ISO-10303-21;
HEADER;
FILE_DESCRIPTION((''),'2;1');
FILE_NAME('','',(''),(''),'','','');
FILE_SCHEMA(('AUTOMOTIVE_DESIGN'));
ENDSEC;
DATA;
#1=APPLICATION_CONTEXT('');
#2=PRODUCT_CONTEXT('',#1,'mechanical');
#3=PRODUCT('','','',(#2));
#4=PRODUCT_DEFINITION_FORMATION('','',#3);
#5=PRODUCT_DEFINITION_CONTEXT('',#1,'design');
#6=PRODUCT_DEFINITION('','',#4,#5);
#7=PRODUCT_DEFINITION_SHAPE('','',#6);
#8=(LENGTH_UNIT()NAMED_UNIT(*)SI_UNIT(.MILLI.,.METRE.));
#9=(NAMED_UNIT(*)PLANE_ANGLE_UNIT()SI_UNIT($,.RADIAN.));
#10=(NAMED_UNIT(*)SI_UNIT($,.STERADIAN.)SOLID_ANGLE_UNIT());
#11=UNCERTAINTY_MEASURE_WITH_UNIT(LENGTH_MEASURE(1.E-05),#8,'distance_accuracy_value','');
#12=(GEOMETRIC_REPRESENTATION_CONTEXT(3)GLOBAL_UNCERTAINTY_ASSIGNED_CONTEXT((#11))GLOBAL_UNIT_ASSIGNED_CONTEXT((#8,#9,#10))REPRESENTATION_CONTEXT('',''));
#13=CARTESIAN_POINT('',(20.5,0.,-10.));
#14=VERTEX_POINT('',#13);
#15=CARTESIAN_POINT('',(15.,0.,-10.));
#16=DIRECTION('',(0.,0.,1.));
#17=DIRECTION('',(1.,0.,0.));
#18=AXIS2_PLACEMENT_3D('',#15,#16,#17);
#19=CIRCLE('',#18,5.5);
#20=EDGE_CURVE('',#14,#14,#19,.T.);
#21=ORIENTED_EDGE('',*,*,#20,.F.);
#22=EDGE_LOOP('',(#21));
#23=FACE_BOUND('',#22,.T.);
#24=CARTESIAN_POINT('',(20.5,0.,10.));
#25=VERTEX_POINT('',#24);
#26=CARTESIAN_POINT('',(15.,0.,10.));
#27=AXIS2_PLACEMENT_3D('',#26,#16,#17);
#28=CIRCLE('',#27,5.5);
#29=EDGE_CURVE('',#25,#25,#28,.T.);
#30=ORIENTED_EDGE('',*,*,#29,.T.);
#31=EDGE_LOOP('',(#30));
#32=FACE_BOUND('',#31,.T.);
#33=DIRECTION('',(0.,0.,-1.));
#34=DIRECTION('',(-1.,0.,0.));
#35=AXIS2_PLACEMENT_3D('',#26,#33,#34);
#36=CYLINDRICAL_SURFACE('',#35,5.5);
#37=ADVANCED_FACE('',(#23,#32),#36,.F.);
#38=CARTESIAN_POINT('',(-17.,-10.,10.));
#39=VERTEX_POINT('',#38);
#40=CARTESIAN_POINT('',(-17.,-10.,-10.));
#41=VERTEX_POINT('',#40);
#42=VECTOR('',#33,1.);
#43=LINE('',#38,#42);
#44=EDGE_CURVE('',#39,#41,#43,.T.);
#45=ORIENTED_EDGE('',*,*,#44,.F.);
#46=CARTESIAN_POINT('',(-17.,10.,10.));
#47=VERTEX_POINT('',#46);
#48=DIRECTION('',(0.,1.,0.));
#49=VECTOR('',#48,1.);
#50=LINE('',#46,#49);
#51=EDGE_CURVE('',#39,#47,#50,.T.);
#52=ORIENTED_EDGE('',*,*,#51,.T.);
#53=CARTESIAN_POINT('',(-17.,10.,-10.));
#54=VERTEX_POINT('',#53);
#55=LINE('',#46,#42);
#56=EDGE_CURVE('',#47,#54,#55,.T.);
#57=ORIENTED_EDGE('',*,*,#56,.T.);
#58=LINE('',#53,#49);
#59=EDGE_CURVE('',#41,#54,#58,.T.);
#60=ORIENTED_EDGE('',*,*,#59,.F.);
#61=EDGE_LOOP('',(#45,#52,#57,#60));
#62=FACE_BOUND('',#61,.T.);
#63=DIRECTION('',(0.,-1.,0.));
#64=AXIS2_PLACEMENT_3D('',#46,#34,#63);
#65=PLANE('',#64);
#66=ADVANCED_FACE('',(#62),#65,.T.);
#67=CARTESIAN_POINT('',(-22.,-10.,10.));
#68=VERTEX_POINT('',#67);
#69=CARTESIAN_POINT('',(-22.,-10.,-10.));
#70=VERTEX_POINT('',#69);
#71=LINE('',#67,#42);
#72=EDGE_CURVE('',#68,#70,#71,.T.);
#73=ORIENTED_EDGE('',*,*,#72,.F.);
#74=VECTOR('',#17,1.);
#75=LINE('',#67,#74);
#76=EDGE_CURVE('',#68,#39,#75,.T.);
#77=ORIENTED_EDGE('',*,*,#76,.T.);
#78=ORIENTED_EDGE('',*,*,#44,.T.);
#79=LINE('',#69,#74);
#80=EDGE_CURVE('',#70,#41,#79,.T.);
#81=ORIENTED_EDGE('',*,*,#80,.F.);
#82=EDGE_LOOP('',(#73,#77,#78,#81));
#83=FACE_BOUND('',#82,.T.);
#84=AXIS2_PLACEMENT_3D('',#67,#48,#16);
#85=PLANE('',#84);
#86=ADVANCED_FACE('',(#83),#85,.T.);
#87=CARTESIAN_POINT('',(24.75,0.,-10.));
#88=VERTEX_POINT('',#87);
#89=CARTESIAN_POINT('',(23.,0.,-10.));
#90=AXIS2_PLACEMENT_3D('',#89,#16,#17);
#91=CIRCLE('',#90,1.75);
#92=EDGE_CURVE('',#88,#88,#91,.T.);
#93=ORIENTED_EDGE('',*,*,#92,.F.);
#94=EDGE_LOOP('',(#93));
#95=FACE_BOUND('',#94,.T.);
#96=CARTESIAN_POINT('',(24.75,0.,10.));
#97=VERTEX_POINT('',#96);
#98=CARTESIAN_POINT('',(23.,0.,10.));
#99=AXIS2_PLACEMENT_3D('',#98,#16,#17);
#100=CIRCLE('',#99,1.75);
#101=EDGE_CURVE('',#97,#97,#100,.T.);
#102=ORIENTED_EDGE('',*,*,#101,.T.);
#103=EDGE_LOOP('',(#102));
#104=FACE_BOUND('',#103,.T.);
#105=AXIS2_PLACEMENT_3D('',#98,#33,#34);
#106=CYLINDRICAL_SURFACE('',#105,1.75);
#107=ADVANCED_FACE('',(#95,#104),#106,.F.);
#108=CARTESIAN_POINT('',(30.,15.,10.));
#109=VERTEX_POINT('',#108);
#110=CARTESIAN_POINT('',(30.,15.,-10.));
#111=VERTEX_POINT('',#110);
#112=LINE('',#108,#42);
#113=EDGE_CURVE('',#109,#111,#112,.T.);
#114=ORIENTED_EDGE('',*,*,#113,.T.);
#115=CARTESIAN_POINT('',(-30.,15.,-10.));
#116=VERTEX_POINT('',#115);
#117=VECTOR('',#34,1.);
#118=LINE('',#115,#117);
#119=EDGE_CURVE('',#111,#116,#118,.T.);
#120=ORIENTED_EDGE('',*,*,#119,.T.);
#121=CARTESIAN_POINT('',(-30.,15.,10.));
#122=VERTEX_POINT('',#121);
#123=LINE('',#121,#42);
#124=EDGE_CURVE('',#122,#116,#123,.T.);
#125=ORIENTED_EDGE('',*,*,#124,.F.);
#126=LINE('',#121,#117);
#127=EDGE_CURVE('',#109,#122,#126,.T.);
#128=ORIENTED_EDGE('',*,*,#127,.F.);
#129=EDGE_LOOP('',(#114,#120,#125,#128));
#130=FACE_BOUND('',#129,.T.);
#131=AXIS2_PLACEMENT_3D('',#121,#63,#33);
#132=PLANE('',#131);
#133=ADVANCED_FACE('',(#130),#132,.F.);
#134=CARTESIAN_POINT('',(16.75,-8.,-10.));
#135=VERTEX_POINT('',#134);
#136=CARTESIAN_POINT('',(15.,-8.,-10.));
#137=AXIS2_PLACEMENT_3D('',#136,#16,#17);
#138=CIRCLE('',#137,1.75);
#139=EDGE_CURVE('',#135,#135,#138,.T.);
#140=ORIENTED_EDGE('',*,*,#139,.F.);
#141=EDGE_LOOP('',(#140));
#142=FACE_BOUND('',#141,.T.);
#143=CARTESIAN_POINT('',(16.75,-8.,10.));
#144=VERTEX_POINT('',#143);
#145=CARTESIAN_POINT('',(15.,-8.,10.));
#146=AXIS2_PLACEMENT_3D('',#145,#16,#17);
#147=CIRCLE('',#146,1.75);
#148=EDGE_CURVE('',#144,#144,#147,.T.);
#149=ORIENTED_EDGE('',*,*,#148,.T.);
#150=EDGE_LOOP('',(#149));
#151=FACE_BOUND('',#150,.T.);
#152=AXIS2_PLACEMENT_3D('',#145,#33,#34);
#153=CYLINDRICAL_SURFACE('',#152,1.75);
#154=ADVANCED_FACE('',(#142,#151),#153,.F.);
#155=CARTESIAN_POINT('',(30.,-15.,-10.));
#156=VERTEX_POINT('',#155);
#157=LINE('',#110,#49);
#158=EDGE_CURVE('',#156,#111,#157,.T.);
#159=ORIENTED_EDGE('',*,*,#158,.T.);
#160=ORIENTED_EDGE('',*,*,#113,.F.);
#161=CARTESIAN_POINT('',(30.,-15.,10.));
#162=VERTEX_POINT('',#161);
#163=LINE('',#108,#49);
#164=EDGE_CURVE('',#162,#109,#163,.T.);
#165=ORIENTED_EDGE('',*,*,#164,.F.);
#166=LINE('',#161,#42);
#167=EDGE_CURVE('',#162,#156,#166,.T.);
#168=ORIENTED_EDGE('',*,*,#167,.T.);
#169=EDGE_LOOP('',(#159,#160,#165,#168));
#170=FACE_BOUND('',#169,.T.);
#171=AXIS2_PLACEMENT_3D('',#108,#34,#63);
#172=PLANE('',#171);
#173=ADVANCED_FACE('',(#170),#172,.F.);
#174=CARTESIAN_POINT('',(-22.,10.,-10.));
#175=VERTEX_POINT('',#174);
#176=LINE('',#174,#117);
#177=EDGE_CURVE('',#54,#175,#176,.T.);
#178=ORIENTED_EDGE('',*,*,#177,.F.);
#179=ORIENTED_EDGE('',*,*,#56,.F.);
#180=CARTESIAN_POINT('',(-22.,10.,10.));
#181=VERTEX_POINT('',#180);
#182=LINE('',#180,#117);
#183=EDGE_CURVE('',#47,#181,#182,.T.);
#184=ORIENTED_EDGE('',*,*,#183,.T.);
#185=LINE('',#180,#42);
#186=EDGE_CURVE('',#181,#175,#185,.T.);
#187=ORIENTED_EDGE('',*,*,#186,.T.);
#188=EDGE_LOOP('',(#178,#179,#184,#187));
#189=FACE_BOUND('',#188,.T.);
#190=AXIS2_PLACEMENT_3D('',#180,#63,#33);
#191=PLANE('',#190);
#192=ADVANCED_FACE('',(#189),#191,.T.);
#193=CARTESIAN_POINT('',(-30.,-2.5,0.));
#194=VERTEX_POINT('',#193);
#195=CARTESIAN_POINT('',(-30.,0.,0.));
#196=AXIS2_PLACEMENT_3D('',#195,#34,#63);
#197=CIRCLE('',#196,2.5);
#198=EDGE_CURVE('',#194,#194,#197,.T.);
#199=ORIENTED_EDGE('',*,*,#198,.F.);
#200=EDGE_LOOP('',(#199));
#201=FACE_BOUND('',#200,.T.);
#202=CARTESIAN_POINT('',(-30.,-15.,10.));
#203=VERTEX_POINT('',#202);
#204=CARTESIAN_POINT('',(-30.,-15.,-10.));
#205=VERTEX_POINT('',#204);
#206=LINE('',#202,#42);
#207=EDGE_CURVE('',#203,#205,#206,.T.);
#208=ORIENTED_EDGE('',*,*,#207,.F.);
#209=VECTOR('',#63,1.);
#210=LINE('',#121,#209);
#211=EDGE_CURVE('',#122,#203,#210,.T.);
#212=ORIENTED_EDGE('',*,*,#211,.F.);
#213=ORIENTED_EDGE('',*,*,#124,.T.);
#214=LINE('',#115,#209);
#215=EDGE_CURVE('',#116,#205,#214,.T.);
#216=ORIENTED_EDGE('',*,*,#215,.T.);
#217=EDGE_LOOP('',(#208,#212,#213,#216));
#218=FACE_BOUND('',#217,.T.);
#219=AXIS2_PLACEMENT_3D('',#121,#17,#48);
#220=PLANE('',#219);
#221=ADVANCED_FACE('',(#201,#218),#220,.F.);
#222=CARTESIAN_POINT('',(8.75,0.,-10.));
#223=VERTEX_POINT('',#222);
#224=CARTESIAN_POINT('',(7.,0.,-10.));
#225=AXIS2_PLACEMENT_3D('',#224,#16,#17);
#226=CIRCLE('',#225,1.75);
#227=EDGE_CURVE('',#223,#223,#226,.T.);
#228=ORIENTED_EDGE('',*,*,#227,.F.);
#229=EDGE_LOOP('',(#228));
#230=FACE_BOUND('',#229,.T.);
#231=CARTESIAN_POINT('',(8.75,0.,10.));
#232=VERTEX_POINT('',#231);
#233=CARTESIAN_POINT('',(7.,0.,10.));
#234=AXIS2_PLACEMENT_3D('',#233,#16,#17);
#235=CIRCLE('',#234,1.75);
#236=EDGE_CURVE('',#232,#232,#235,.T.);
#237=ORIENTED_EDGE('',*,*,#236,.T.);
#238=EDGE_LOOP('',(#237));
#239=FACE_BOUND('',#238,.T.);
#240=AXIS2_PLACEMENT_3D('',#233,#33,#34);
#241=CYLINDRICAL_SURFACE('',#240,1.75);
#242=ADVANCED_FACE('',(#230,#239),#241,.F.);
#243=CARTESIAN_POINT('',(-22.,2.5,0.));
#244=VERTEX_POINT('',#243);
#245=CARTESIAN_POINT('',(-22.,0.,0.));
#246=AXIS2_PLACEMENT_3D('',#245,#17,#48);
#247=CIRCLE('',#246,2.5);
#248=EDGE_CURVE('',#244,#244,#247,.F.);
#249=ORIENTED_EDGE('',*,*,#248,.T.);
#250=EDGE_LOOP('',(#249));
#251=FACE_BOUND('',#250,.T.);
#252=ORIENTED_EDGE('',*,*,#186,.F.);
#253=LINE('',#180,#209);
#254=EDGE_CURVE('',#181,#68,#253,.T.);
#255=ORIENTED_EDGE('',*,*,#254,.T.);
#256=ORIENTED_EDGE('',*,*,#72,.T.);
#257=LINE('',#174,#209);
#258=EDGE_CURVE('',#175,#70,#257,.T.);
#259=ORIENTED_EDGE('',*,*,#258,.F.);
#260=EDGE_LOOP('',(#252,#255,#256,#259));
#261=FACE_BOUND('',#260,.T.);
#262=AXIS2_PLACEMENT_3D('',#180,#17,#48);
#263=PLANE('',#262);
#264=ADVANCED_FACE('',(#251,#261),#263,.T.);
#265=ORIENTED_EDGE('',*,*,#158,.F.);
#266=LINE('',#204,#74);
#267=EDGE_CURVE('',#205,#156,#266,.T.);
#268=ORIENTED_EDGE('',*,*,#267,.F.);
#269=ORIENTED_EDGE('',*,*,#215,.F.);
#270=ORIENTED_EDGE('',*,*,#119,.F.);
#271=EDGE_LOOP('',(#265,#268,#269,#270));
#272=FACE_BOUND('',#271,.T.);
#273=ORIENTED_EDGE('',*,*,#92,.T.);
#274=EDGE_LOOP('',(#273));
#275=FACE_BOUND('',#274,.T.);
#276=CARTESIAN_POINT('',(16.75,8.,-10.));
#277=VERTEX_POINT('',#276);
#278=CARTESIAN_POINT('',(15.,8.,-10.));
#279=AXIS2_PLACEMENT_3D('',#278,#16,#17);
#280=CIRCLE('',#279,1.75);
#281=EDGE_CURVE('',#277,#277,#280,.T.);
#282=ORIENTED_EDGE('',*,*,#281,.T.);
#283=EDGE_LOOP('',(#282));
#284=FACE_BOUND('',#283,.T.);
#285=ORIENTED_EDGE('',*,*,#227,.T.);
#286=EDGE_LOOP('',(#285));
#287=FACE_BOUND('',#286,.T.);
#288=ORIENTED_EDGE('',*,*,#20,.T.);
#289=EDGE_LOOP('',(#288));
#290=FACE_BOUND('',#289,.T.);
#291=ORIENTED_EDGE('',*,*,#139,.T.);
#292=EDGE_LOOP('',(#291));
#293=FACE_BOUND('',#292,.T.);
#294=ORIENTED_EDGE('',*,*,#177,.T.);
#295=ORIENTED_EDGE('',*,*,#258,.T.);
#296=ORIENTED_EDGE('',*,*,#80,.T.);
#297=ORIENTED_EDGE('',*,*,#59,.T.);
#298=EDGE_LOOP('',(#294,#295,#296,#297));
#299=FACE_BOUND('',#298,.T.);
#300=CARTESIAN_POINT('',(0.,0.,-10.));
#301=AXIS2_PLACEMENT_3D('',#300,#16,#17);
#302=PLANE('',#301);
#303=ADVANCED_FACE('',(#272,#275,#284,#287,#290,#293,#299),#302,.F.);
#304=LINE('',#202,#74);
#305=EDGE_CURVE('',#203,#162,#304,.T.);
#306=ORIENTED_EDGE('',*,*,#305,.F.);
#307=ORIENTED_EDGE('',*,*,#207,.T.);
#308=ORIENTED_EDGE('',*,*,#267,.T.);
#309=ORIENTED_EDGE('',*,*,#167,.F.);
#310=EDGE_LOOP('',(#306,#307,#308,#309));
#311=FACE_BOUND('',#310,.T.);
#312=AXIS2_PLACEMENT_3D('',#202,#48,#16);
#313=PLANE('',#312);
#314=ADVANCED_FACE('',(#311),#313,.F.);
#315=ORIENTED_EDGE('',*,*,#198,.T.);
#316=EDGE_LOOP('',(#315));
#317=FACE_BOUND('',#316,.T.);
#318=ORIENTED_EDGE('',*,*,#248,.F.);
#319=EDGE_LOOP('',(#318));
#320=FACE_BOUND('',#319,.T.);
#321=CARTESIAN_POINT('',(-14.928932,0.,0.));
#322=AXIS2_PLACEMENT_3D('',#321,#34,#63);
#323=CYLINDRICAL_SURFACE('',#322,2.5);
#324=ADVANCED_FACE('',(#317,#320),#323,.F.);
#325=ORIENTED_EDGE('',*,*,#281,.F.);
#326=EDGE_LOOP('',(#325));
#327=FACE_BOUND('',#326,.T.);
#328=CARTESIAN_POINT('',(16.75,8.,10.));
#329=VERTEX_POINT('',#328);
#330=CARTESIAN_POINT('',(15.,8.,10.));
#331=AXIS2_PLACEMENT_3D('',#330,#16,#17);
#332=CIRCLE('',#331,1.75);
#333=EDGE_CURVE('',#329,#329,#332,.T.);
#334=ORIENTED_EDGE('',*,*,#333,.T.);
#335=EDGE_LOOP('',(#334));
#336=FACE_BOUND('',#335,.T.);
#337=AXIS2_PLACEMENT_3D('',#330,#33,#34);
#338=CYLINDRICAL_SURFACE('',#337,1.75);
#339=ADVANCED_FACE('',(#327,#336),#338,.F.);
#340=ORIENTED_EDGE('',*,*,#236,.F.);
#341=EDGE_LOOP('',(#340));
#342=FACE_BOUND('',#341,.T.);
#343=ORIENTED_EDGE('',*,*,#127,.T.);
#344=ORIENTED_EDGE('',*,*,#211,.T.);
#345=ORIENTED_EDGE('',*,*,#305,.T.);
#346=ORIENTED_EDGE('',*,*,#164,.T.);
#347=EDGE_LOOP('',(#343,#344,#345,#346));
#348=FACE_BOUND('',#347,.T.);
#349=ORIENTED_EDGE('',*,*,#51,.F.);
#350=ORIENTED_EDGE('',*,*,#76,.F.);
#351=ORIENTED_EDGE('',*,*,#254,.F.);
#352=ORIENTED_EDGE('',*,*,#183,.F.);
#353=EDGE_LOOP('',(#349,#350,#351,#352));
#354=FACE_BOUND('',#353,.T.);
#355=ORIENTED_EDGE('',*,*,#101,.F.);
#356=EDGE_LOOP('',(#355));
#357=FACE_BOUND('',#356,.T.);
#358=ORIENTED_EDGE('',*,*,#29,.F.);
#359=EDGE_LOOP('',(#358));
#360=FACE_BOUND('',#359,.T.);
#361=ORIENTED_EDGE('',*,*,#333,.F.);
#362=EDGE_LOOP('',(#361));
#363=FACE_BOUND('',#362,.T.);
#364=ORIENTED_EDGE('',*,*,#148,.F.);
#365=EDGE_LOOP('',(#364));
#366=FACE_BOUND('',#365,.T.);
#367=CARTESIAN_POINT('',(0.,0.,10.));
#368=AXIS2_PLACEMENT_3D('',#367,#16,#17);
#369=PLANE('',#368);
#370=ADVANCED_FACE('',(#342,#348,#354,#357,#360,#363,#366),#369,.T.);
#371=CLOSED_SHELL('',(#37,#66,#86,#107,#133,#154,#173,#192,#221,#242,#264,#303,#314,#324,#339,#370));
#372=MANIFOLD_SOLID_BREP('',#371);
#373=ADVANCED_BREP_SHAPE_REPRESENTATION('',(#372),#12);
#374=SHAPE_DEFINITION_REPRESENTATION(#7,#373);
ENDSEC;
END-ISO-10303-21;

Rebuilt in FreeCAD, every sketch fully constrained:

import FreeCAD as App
import Part
import Sketcher

doc = App.newDocument("Part")
body = doc.addObject("PartDesign::Body", "Body")

sketch1 = body.newObject("Sketcher::SketchObject", "Sketch")
sketch1.AttachmentSupport = (doc.getObject("XY_Plane"), [""])
sketch1.MapMode = "FlatFace"
sketch1.addGeometry([
    Part.LineSegment(App.Vector(-30, 15, 0), App.Vector(-30, -15, 0)),
    Part.LineSegment(App.Vector(-30, -15, 0), App.Vector(30, -15, 0)),
    Part.LineSegment(App.Vector(30, -15, 0), App.Vector(30, 15, 0)),
    Part.LineSegment(App.Vector(30, 15, 0), App.Vector(-30, 15, 0)),
    Part.Circle(App.Vector(15, -8, 0), App.Vector(0, 0, 1), 1.8),
    Part.LineSegment(App.Vector(-17, -10, 0), App.Vector(-22, -10, 0)),
    Part.LineSegment(App.Vector(-22, -10, 0), App.Vector(-22, 10, 0)),
    Part.LineSegment(App.Vector(-22, 10, 0), App.Vector(-17, 10, 0)),
    Part.LineSegment(App.Vector(-17, 10, 0), App.Vector(-17, -10, 0)),
    Part.Circle(App.Vector(7, 0, 0), App.Vector(0, 0, 1), 1.8),
    Part.Circle(App.Vector(15, 0, 0), App.Vector(0, 0, 1), 5.5),
    Part.Circle(App.Vector(23, 0, 0), App.Vector(0, 0, 1), 1.8),
    Part.Circle(App.Vector(15, 8, 0), App.Vector(0, 0, 1), 1.8),
], False)
sketch1.addConstraint([
    Sketcher.Constraint("Coincident", 0, 2, 1, 1),
    Sketcher.Constraint("Coincident", 1, 2, 2, 1),
    Sketcher.Constraint("Coincident", 2, 2, 3, 1),
    Sketcher.Constraint("Coincident", 3, 2, 0, 1),
    Sketcher.Constraint("Coincident", 5, 2, 6, 1),
    Sketcher.Constraint("Coincident", 6, 2, 7, 1),
    Sketcher.Constraint("Coincident", 7, 2, 8, 1),
    Sketcher.Constraint("Coincident", 8, 2, 5, 1),
    Sketcher.Constraint("Vertical", 0),
    Sketcher.Constraint("Horizontal", 1),
    Sketcher.Constraint("Vertical", 2),
    Sketcher.Constraint("Horizontal", 3),
    Sketcher.Constraint("Horizontal", 5),
    Sketcher.Constraint("Vertical", 6),
    Sketcher.Constraint("Horizontal", 7),
    Sketcher.Constraint("Vertical", 8),
    Sketcher.Constraint("Equal", 4, 9),
    Sketcher.Constraint("Equal", 9, 11),
    Sketcher.Constraint("Equal", 11, 12),
    Sketcher.Constraint("Symmetric", 0, 2, 2, 2, -1, 1),
    Sketcher.Constraint("Symmetric", 4, 3, 12, 3, -1),
    Sketcher.Constraint("PointOnObject", 9, 3, -1),
    Sketcher.Constraint("PointOnObject", 10, 3, -1),
    Sketcher.Constraint("PointOnObject", 11, 3, -1),
    Sketcher.Constraint("Vertical", 4, 3, 10, 3),
    Sketcher.Constraint("Diameter", 10, 11.0),
    Sketcher.Constraint("Diameter", 4, 3.5),
    Sketcher.Constraint("DistanceX", 1, 1, 1, 2, 60.0),
    Sketcher.Constraint("DistanceX", 5, 2, 5, 1, 5.0),
    Sketcher.Constraint("DistanceY", 0, 2, 0, 1, 30.0),
    Sketcher.Constraint("DistanceY", 6, 1, 6, 2, 20.0),
    Sketcher.Constraint("DistanceX", -1, 1, 4, 3, 15.0),
    Sketcher.Constraint("DistanceY", 4, 3, -1, 1, 8.0),
    Sketcher.Constraint("DistanceX", -1, 1, 9, 3, 7.0),
    Sketcher.Constraint("DistanceX", -1, 1, 11, 3, 23.0),
    Sketcher.Constraint("DistanceX", 5, 2, -1, 1, 22.0),
    Sketcher.Constraint("DistanceY", 5, 2, -1, 1, 10.0),
])
pad1 = body.newObject("PartDesign::Pad", "Pad")
pad1.Profile = sketch1
pad1.Length = 20
pad1.Midplane = True

sketch2 = body.newObject("Sketcher::SketchObject", "Sketch001")
sketch2.AttachmentSupport = (doc.getObject("YZ_Plane"), [""])
sketch2.MapMode = "FlatFace"
sketch2.AttachmentOffset = App.Placement(App.Vector(0, 0, -30), App.Rotation())
sketch2.addGeometry(Part.Circle(App.Vector(0, 0, 0), App.Vector(0, 0, 1), 2.5), False)
sketch2.addConstraint([
    Sketcher.Constraint("Coincident", 0, 3, -1, 1),
    Sketcher.Constraint("Diameter", 0, 5.0),
])
pocket1 = body.newObject("PartDesign::Pocket", "Pocket")
pocket1.Profile = sketch2
pocket1.Length = 8
pocket1.Reversed = True

doc.recompute()
